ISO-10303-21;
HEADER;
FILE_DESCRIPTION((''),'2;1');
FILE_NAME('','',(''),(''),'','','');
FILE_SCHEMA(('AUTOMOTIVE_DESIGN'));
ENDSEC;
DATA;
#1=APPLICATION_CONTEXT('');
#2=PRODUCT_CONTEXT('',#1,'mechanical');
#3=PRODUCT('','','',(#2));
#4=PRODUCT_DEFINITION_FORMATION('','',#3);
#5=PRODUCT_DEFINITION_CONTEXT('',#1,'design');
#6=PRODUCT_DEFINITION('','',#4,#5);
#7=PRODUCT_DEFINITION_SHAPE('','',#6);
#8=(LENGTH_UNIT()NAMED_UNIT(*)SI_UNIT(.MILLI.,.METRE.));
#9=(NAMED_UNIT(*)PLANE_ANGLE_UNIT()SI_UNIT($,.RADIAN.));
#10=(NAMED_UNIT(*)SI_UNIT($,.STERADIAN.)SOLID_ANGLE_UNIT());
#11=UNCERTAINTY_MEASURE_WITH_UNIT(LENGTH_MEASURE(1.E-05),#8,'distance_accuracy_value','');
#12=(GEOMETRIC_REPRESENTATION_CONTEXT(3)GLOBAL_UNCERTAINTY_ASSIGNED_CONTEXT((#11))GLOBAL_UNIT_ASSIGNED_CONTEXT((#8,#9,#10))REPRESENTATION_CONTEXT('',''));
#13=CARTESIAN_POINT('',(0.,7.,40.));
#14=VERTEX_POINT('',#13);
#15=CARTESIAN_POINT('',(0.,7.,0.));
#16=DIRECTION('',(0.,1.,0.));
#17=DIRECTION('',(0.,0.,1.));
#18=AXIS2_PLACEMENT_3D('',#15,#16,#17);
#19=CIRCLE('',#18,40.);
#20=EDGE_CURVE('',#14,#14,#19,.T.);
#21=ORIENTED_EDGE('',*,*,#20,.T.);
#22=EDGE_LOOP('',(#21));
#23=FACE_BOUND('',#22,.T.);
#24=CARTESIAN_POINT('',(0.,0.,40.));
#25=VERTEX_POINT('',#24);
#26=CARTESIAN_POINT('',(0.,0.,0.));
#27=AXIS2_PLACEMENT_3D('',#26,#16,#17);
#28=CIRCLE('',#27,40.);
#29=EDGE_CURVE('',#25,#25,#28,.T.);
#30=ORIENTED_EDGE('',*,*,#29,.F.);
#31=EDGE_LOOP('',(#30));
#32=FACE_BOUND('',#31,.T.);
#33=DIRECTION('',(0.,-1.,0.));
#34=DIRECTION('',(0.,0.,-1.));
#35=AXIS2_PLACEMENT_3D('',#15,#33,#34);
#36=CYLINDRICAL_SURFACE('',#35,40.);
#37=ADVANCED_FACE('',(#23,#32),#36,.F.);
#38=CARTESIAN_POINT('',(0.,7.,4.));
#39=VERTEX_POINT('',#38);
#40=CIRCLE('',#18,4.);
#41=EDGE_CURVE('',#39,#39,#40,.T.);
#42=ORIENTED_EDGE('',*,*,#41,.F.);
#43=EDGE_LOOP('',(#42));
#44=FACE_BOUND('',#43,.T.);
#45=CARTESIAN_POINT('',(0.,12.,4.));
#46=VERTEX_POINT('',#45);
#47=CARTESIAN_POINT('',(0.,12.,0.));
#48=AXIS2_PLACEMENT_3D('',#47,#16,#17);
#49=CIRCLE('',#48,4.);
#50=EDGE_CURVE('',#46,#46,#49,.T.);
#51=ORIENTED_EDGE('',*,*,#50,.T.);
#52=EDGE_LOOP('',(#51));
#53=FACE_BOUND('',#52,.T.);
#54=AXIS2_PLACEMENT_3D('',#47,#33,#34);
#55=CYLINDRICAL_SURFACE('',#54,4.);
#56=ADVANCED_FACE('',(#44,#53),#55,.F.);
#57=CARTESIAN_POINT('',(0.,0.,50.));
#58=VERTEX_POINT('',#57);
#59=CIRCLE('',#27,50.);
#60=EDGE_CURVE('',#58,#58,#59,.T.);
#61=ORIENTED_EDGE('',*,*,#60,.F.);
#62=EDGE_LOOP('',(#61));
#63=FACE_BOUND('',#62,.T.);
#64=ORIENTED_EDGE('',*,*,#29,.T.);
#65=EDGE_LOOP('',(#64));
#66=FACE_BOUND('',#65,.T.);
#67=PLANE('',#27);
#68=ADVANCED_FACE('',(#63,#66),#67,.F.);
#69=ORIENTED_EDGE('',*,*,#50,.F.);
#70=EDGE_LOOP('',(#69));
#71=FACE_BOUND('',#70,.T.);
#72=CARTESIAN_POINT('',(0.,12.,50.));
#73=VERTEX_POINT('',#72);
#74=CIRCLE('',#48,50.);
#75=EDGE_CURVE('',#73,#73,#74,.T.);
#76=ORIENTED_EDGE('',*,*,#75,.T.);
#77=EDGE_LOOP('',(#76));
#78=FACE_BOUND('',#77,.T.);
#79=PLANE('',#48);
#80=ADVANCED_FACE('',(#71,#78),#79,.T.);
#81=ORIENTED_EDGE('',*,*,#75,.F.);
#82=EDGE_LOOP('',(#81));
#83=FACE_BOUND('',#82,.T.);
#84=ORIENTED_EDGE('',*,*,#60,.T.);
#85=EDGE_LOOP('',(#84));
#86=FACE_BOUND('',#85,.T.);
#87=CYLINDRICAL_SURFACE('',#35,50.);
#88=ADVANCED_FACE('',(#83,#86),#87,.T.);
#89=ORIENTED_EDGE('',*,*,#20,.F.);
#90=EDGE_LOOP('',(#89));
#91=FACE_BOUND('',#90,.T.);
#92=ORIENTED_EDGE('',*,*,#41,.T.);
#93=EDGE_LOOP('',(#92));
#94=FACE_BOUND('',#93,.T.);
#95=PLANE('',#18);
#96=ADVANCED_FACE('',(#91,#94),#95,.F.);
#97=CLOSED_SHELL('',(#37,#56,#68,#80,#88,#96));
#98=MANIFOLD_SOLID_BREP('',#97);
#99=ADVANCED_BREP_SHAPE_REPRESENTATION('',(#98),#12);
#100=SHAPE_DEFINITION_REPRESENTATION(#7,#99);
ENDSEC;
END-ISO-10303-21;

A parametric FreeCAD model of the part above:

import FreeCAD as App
import Part
import Sketcher

V = App.Vector
Q = App.Units.Quantity

doc = App.newDocument("Part")
body = doc.addObject("PartDesign::Body", "Body")

# Sketch on XZ plane
sketch1 = body.newObject("Sketcher::SketchObject", "Sketch")
sketch1.AttachmentSupport = (doc.getObject("XZ_Plane"), [""])
sketch1.MapMode = "FlatFace"
sketch1.addGeometry([
    Part.Circle(V(0, 0, 0), V(0, 0, 1), 50),
    Part.Circle(V(0, 0, 0), V(0, 0, 1), 40),
], False)
sketch1.addConstraint([
    Sketcher.Constraint("Coincident", 0, 3, -1, 1),
    Sketcher.Constraint("Coincident", 1, 3, -1, 1),
    Sketcher.Constraint("Diameter", 0, Q("100 mm")),
    Sketcher.Constraint("Diameter", 1, Q("80 mm")),
])
pad1 = body.newObject("PartDesign::Pad", "Pad")
pad1.Profile = sketch1
pad1.Length = 7
pad1.Reversed = True

# Sketch on XZ plane
sketch2 = body.newObject("Sketcher::SketchObject", "Sketch001")
sketch2.AttachmentSupport = (doc.getObject("XZ_Plane"), [""])
sketch2.MapMode = "FlatFace"
sketch2.AttachmentOffset = App.Placement(V(0, 0, -7), App.Rotation())
sketch2.addGeometry([
    Part.Circle(V(0, 0, 0), V(0, 0, 1), 50),
    Part.Circle(V(0, 0, 0), V(0, 0, 1), 4),
], False)
sketch2.addConstraint([
    Sketcher.Constraint("Coincident", 0, 3, -1, 1),
    Sketcher.Constraint("Coincident", 1, 3, -1, 1),
    Sketcher.Constraint("Diameter", 0, Q("100 mm")),
    Sketcher.Constraint("Diameter", 1, Q("8 mm")),
])
pad2 = body.newObject("PartDesign::Pad", "Pad001")
pad2.Profile = sketch2
pad2.Length = 5
pad2.Reversed = True

doc.recompute()
